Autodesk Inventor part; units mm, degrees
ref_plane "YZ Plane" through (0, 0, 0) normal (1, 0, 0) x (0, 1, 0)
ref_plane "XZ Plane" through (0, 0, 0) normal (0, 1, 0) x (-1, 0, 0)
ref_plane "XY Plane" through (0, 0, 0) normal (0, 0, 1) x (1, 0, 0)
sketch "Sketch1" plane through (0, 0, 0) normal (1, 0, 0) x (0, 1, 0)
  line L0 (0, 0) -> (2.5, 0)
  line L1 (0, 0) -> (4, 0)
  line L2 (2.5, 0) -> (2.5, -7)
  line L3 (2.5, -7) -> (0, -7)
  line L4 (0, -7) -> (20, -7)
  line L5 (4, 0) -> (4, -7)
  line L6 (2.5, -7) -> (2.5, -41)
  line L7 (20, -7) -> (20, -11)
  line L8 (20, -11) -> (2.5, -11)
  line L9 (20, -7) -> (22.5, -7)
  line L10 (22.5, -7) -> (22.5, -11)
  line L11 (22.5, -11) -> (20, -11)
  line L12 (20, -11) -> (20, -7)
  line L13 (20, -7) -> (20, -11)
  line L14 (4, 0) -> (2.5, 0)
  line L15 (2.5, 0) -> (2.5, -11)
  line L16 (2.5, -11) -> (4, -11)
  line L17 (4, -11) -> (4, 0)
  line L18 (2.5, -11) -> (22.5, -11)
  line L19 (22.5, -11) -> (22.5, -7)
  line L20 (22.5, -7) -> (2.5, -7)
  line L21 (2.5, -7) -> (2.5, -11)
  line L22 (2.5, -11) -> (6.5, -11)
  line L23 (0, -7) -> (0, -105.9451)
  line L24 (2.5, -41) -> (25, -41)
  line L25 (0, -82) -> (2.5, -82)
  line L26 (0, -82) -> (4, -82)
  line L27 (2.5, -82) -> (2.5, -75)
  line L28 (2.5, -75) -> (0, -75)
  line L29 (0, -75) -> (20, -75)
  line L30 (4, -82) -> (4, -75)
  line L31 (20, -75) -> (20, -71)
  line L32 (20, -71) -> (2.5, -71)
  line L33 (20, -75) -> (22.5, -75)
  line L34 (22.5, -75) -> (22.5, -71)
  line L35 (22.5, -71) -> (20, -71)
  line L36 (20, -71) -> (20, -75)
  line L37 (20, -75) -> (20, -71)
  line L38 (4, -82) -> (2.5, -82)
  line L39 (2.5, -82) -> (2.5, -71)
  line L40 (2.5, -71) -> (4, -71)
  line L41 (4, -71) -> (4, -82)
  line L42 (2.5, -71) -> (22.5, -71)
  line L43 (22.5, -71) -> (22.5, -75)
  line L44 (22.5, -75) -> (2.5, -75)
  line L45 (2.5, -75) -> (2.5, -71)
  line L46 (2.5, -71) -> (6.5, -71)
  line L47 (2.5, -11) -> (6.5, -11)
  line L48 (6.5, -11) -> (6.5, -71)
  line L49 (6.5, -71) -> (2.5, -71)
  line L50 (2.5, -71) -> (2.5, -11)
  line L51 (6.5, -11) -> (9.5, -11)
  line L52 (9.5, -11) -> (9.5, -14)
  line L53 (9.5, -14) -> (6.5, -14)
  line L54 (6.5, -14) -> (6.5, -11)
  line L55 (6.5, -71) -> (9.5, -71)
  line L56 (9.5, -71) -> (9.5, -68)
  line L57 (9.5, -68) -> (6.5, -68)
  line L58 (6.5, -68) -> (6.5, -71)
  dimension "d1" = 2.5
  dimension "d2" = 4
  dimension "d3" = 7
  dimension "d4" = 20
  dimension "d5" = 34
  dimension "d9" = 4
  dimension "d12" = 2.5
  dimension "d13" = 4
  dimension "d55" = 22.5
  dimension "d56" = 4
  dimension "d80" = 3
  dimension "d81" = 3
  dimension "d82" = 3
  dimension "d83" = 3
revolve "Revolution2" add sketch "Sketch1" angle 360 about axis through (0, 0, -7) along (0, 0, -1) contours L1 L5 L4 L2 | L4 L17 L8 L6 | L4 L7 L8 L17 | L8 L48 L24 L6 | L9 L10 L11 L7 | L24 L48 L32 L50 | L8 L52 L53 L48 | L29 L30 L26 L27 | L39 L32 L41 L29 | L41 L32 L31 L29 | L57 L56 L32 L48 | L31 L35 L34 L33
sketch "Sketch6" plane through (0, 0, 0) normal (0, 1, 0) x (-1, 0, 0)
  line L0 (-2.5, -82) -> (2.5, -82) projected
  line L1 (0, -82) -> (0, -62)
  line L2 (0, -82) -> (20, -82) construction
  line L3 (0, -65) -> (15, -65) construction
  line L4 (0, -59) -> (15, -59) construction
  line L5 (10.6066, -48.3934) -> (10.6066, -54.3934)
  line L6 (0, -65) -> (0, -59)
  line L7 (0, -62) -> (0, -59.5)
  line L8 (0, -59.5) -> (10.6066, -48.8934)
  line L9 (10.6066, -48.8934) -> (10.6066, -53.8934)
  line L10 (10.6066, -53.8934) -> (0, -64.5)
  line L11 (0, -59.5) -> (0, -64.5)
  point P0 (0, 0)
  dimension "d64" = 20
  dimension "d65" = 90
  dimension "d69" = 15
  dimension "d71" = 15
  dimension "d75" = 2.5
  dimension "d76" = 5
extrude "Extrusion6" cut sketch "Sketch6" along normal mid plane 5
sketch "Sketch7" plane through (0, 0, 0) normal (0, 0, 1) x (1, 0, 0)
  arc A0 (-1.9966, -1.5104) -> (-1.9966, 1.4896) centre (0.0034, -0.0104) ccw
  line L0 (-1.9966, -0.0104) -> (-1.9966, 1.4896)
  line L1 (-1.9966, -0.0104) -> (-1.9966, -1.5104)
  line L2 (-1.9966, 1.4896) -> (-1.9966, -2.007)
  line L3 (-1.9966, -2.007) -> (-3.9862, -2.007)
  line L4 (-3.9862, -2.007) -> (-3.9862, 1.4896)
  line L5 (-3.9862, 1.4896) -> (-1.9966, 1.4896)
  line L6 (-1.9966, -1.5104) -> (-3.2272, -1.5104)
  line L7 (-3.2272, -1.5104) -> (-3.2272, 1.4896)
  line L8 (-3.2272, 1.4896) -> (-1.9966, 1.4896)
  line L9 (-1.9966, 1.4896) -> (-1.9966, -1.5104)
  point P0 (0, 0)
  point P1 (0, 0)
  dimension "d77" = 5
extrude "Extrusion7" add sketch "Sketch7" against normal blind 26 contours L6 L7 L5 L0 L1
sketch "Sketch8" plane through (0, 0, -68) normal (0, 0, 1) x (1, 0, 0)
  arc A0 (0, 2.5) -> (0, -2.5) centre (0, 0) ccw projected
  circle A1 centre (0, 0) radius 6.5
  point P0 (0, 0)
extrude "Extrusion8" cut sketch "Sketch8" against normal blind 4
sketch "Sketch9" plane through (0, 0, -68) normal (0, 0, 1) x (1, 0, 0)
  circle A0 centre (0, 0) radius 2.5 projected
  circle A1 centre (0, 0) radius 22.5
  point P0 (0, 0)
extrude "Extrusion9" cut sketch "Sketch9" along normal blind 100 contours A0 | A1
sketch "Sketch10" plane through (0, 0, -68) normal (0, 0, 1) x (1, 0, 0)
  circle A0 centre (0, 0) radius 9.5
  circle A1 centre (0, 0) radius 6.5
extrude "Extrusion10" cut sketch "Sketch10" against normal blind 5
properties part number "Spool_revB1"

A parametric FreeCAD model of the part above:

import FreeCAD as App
import Part
import Sketcher

V = App.Vector
Q = App.Units.Quantity

doc = App.newDocument("Part")
params = doc.addObject("Spreadsheet::Sheet", "Params")
for row, (alias, value) in enumerate([
    ("sketch1_width", "3 mm"),
    ("sketch1_height", "7 mm"),
    ("sketch1_height2", "4 mm"),
    ("sketch1_height3", "82 mm"),
    ("revolution_angle", "360 deg"),
    ("sketch2_height", "5 mm"),
    ("sketch2_length", "15 mm"),
    ("pocket1_length", "5 mm"),
    ("sketch3_height", "3 mm"),
    ("pad1_length", "26 mm"),
    ("sketch4_diameter", "13 mm"),
    ("pocket2_length", "4 mm"),
    ("sketch5_diameter", "45 mm"),
    ("pocket3_length", "100 mm"),
    ("sketch6_diameter", "19 mm"),
    ("sketch6_diameter2", "13 mm"),
    ("pocket4_length", "5 mm"),
], start=1):
    params.set(f"A{row}", alias)
    params.set(f"B{row}", "=" + value)
    params.setAlias(f"B{row}", alias)

body = doc.addObject("PartDesign::Body", "Body")
body.AllowCompound = True

# Sketch on YZ plane
sketch1 = body.newObject("Sketcher::SketchObject", "Sketch")
sketch1.AttachmentSupport = (doc.getObject("YZ_Plane"), [""])
sketch1.MapMode = "FlatFace"
sketch1.addGeometry([
    Part.LineSegment(V(4, 0, 0), V(2.5, 0, 0)),  # 0
    Part.LineSegment(V(2.5, 0, 0), V(2.5, -82, 0)),  # 1
    Part.LineSegment(V(2.5, -82, 0), V(4, -82, 0)),  # 2
    Part.LineSegment(V(4, -82, 0), V(4, -75, 0)),  # 3
    Part.LineSegment(V(4, -75, 0), V(22.5, -75, 0)),  # 4
    Part.LineSegment(V(22.5, -75, 0), V(22.5, -71, 0)),  # 5
    Part.LineSegment(V(22.5, -71, 0), V(9.5, -71, 0)),  # 6
    Part.LineSegment(V(9.5, -71, 0), V(9.5, -68, 0)),  # 7
    Part.LineSegment(V(9.5, -68, 0), V(6.5, -68, 0)),  # 8
    Part.LineSegment(V(6.5, -68, 0), V(6.5, -14, 0)),  # 9
    Part.LineSegment(V(6.5, -14, 0), V(9.5, -14, 0)),  # 10
    Part.LineSegment(V(9.5, -14, 0), V(9.5, -11, 0)),  # 11
    Part.LineSegment(V(9.5, -11, 0), V(22.5, -11, 0)),  # 12
    Part.LineSegment(V(22.5, -11, 0), V(22.5, -7, 0)),  # 13
    Part.LineSegment(V(22.5, -7, 0), V(4, -7, 0)),  # 14
    Part.LineSegment(V(4, -7, 0), V(4, 0, 0)),  # 15
], False)
sketch1.addConstraint([
    Sketcher.Constraint("Coincident", 0, 2, 1, 1),
    Sketcher.Constraint("Coincident", 1, 2, 2, 1),
    Sketcher.Constraint("Coincident", 2, 2, 3, 1),
    Sketcher.Constraint("Coincident", 3, 2, 4, 1),
    Sketcher.Constraint("Coincident", 4, 2, 5, 1),
    Sketcher.Constraint("Coincident", 5, 2, 6, 1),
    Sketcher.Constraint("Coincident", 6, 2, 7, 1),
    Sketcher.Constraint("Coincident", 7, 2, 8, 1),
    Sketcher.Constraint("Coincident", 8, 2, 9, 1),
    Sketcher.Constraint("Coincident", 9, 2, 10, 1),
    Sketcher.Constraint("Coincident", 10, 2, 11, 1),
    Sketcher.Constraint("Coincident", 11, 2, 12, 1),
    Sketcher.Constraint("Coincident", 12, 2, 13, 1),
    Sketcher.Constraint("Coincident", 13, 2, 14, 1),
    Sketcher.Constraint("Coincident", 14, 2, 15, 1),
    Sketcher.Constraint("Coincident", 15, 2, 0, 1),
    Sketcher.Constraint("Horizontal", 0),
    Sketcher.Constraint("Vertical", 1),
    Sketcher.Constraint("Horizontal", 2),
    Sketcher.Constraint("Vertical", 3),
    Sketcher.Constraint("Horizontal", 4),
    Sketcher.Constraint("Vertical", 5),
    Sketcher.Constraint("Horizontal", 6),
    Sketcher.Constraint("Vertical", 7),
    Sketcher.Constraint("Horizontal", 8),
    Sketcher.Constraint("Vertical", 9),
    Sketcher.Constraint("Horizontal", 10),
    Sketcher.Constraint("Vertical", 11),
    Sketcher.Constraint("Horizontal", 12),
    Sketcher.Constraint("Vertical", 13),
    Sketcher.Constraint("Horizontal", 14),
    Sketcher.Constraint("Vertical", 15),
    Sketcher.Constraint("PointOnObject", 0, 2, -1),
    Sketcher.Constraint("Vertical", 7, 2, 10, 2),
    Sketcher.Constraint("Vertical", 5, 2, 12, 2),
    Sketcher.Constraint("Vertical", 3, 2, 14, 2),
    Sketcher.Constraint("Equal", 10, 7),
    Sketcher.Constraint("Equal", 7, 11),
    Sketcher.Constraint("Equal", 5, 13),
    Sketcher.Constraint("Equal", 3, 15),
    Sketcher.Constraint("DistanceX", 8, 2, 8, 1, 3.0),
    Sketcher.Constraint("DistanceY", 3, 1, 3, 2, 7.0),
    Sketcher.Constraint("DistanceY", 5, 1, 5, 2, 4.0),
    Sketcher.Constraint("DistanceX", -1, 1, 2, 2, 4.0),
    Sketcher.Constraint("DistanceX", 1, 2, 4, 2, 20.0),
    Sketcher.Constraint("DistanceX", 1, 2, 6, 2, 7.0),
    Sketcher.Constraint("DistanceX", -1, 1, 0, 2, 2.5),
    Sketcher.Constraint("DistanceY", 1, 2, 1, 1, 82.0),
])
sketch1.setExpression("Constraints[40]", "Params.sketch1_width")
sketch1.setExpression("Constraints[41]", "Params.sketch1_height")
sketch1.setExpression("Constraints[42]", "Params.sketch1_height2")
sketch1.setExpression("Constraints[47]", "Params.sketch1_height3")
revolution = body.newObject("PartDesign::Revolution", "Revolution")
revolution.Profile = sketch1
revolution.ReferenceAxis = (sketch1, ["V_Axis"])
revolution.setExpression("Angle", "Params.revolution_angle")

# Sketch on XZ plane
sketch2 = body.newObject("Sketcher::SketchObject", "Sketch001")
sketch2.AttachmentSupport = (doc.getObject("XZ_Plane"), [""])
sketch2.MapMode = "FlatFace"
sketch2.addGeometry([
    Part.LineSegment(V(0, -60, 0), V(0, -64, 0)),
    Part.LineSegment(V(0, -64, 0), V(-11, -54, 0)),
    Part.LineSegment(V(-11, -54, 0), V(-11, -49, 0)),
    Part.LineSegment(V(-11, -49, 0), V(0, -60, 0)),
], False)
sketch2.addConstraint([
    Sketcher.Constraint("Coincident", 0, 2, 1, 1),
    Sketcher.Constraint("Coincident", 1, 2, 2, 1),
    Sketcher.Constraint("Coincident", 2, 2, 3, 1),
    Sketcher.Constraint("Coincident", 3, 2, 0, 1),
    Sketcher.Constraint("Vertical", 0),
    Sketcher.Constraint("Vertical", 2),
    Sketcher.Constraint("PointOnObject", 0, 2, -2),
    Sketcher.Constraint("Parallel", 1, 3),
    Sketcher.Constraint("DistanceY", 0, 2, 0, 1, 5.0),
    Sketcher.Constraint("Distance", 1, 15.0),
    Sketcher.Constraint("Angle", 1, Q("135 deg")),
    Sketcher.Constraint("DistanceY", 0, 2, -1, 1, 64.5),
])
sketch2.setExpression("Constraints[8]", "Params.sketch2_height")
sketch2.setExpression("Constraints[9]", "Params.sketch2_length")
pocket1 = body.newObject("PartDesign::Pocket", "Pocket")
pocket1.Profile = sketch2
pocket1.setExpression("Length", "Params.pocket1_length")
pocket1.Midplane = True

# Sketch on XY plane
sketch3 = body.newObject("Sketcher::SketchObject", "Sketch002")
sketch3.AttachmentSupport = (doc.getObject("XY_Plane"), [""])
sketch3.MapMode = "FlatFace"
sketch3.addGeometry([
    Part.LineSegment(V(-3.2, -1.5, 0), V(-2, -1.5, 0)),
    Part.LineSegment(V(-2, -1.5, 0), V(-2, 1.5, 0)),
    Part.LineSegment(V(-2, 1.5, 0), V(-3.2, 1.5, 0)),
    Part.LineSegment(V(-3.2, 1.5, 0), V(-3.2, -1.5, 0)),
], False)
sketch3.addConstraint([
    Sketcher.Constraint("Coincident", 0, 2, 1, 1),
    Sketcher.Constraint("Coincident", 1, 2, 2, 1),
    Sketcher.Constraint("Coincident", 2, 2, 3, 1),
    Sketcher.Constraint("Coincident", 3, 2, 0, 1),
    Sketcher.Constraint("Horizontal", 0),
    Sketcher.Constraint("Vertical", 1),
    Sketcher.Constraint("Horizontal", 2),
    Sketcher.Constraint("Vertical", 3),
    Sketcher.Constraint("DistanceY", 1, 1, 1, 2, 3.0),
    Sketcher.Constraint("DistanceX", 0, 1, 0, 2, 1.2306),
    Sketcher.Constraint("DistanceX", 0, 2, -1, 1, 1.9966),
    Sketcher.Constraint("DistanceY", 0, 2, -1, 1, 1.5104),
])
sketch3.setExpression("Constraints[8]", "Params.sketch3_height")
pad1 = body.newObject("PartDesign::Pad", "Pad")
pad1.Profile = sketch3
pad1.setExpression("Length", "Params.pad1_length")
pad1.Reversed = True

# Sketch on XY plane
sketch4 = body.newObject("Sketcher::SketchObject", "Sketch003")
sketch4.AttachmentSupport = (doc.getObject("XY_Plane"), [""])
sketch4.MapMode = "FlatFace"
sketch4.AttachmentOffset = App.Placement(V(0, 0, -68), App.Rotation())
sketch4.addGeometry(Part.Circle(V(0, 0, 0), V(0, 0, 1), 6), False)
sketch4.addConstraint([
    Sketcher.Constraint("Coincident", 0, 3, -1, 1),
    Sketcher.Constraint("Diameter", 0, 13.0),
])
sketch4.setExpression("Constraints[1]", "Params.sketch4_diameter")
pocket2 = body.newObject("PartDesign::Pocket", "Pocket001")
pocket2.Profile = sketch4
pocket2.setExpression("Length", "Params.pocket2_length")

# Sketch on XY plane
sketch5 = body.newObject("Sketcher::SketchObject", "Sketch004")
sketch5.AttachmentSupport = (doc.getObject("XY_Plane"), [""])
sketch5.MapMode = "FlatFace"
sketch5.AttachmentOffset = App.Placement(V(0, 0, -68), App.Rotation())
sketch5.addGeometry(Part.Circle(V(0, 0, 0), V(0, 0, 1), 22), False)
sketch5.addConstraint([
    Sketcher.Constraint("Coincident", 0, 3, -1, 1),
    Sketcher.Constraint("Diameter", 0, 45.0),
])
sketch5.setExpression("Constraints[1]", "Params.sketch5_diameter")
pocket3 = body.newObject("PartDesign::Pocket", "Pocket002")
pocket3.Profile = sketch5
pocket3.setExpression("Length", "Params.pocket3_length")
pocket3.Reversed = True

# Sketch on XY plane
sketch6 = body.newObject("Sketcher::SketchObject", "Sketch005")
sketch6.AttachmentSupport = (doc.getObject("XY_Plane"), [""])
sketch6.MapMode = "FlatFace"
sketch6.AttachmentOffset = App.Placement(V(0, 0, -68), App.Rotation())
sketch6.addGeometry([
    Part.Circle(V(0, 0, 0), V(0, 0, 1), 10),
    Part.Circle(V(0, 0, 0), V(0, 0, 1), 6),
], False)
sketch6.addConstraint([
    Sketcher.Constraint("Coincident", 0, 3, -1, 1),
    Sketcher.Constraint("Coincident", 1, 3, -1, 1),
    Sketcher.Constraint("Diameter", 0, 19.0),
    Sketcher.Constraint("Diameter", 1, 13.0),
])
sketch6.setExpression("Constraints[2]", "Params.sketch6_diameter")
sketch6.setExpression("Constraints[3]", "Params.sketch6_diameter2")
pocket4 = body.newObject("PartDesign::Pocket", "Pocket003")
pocket4.Profile = sketch6
pocket4.setExpression("Length", "Params.pocket4_length")

doc.recompute()
